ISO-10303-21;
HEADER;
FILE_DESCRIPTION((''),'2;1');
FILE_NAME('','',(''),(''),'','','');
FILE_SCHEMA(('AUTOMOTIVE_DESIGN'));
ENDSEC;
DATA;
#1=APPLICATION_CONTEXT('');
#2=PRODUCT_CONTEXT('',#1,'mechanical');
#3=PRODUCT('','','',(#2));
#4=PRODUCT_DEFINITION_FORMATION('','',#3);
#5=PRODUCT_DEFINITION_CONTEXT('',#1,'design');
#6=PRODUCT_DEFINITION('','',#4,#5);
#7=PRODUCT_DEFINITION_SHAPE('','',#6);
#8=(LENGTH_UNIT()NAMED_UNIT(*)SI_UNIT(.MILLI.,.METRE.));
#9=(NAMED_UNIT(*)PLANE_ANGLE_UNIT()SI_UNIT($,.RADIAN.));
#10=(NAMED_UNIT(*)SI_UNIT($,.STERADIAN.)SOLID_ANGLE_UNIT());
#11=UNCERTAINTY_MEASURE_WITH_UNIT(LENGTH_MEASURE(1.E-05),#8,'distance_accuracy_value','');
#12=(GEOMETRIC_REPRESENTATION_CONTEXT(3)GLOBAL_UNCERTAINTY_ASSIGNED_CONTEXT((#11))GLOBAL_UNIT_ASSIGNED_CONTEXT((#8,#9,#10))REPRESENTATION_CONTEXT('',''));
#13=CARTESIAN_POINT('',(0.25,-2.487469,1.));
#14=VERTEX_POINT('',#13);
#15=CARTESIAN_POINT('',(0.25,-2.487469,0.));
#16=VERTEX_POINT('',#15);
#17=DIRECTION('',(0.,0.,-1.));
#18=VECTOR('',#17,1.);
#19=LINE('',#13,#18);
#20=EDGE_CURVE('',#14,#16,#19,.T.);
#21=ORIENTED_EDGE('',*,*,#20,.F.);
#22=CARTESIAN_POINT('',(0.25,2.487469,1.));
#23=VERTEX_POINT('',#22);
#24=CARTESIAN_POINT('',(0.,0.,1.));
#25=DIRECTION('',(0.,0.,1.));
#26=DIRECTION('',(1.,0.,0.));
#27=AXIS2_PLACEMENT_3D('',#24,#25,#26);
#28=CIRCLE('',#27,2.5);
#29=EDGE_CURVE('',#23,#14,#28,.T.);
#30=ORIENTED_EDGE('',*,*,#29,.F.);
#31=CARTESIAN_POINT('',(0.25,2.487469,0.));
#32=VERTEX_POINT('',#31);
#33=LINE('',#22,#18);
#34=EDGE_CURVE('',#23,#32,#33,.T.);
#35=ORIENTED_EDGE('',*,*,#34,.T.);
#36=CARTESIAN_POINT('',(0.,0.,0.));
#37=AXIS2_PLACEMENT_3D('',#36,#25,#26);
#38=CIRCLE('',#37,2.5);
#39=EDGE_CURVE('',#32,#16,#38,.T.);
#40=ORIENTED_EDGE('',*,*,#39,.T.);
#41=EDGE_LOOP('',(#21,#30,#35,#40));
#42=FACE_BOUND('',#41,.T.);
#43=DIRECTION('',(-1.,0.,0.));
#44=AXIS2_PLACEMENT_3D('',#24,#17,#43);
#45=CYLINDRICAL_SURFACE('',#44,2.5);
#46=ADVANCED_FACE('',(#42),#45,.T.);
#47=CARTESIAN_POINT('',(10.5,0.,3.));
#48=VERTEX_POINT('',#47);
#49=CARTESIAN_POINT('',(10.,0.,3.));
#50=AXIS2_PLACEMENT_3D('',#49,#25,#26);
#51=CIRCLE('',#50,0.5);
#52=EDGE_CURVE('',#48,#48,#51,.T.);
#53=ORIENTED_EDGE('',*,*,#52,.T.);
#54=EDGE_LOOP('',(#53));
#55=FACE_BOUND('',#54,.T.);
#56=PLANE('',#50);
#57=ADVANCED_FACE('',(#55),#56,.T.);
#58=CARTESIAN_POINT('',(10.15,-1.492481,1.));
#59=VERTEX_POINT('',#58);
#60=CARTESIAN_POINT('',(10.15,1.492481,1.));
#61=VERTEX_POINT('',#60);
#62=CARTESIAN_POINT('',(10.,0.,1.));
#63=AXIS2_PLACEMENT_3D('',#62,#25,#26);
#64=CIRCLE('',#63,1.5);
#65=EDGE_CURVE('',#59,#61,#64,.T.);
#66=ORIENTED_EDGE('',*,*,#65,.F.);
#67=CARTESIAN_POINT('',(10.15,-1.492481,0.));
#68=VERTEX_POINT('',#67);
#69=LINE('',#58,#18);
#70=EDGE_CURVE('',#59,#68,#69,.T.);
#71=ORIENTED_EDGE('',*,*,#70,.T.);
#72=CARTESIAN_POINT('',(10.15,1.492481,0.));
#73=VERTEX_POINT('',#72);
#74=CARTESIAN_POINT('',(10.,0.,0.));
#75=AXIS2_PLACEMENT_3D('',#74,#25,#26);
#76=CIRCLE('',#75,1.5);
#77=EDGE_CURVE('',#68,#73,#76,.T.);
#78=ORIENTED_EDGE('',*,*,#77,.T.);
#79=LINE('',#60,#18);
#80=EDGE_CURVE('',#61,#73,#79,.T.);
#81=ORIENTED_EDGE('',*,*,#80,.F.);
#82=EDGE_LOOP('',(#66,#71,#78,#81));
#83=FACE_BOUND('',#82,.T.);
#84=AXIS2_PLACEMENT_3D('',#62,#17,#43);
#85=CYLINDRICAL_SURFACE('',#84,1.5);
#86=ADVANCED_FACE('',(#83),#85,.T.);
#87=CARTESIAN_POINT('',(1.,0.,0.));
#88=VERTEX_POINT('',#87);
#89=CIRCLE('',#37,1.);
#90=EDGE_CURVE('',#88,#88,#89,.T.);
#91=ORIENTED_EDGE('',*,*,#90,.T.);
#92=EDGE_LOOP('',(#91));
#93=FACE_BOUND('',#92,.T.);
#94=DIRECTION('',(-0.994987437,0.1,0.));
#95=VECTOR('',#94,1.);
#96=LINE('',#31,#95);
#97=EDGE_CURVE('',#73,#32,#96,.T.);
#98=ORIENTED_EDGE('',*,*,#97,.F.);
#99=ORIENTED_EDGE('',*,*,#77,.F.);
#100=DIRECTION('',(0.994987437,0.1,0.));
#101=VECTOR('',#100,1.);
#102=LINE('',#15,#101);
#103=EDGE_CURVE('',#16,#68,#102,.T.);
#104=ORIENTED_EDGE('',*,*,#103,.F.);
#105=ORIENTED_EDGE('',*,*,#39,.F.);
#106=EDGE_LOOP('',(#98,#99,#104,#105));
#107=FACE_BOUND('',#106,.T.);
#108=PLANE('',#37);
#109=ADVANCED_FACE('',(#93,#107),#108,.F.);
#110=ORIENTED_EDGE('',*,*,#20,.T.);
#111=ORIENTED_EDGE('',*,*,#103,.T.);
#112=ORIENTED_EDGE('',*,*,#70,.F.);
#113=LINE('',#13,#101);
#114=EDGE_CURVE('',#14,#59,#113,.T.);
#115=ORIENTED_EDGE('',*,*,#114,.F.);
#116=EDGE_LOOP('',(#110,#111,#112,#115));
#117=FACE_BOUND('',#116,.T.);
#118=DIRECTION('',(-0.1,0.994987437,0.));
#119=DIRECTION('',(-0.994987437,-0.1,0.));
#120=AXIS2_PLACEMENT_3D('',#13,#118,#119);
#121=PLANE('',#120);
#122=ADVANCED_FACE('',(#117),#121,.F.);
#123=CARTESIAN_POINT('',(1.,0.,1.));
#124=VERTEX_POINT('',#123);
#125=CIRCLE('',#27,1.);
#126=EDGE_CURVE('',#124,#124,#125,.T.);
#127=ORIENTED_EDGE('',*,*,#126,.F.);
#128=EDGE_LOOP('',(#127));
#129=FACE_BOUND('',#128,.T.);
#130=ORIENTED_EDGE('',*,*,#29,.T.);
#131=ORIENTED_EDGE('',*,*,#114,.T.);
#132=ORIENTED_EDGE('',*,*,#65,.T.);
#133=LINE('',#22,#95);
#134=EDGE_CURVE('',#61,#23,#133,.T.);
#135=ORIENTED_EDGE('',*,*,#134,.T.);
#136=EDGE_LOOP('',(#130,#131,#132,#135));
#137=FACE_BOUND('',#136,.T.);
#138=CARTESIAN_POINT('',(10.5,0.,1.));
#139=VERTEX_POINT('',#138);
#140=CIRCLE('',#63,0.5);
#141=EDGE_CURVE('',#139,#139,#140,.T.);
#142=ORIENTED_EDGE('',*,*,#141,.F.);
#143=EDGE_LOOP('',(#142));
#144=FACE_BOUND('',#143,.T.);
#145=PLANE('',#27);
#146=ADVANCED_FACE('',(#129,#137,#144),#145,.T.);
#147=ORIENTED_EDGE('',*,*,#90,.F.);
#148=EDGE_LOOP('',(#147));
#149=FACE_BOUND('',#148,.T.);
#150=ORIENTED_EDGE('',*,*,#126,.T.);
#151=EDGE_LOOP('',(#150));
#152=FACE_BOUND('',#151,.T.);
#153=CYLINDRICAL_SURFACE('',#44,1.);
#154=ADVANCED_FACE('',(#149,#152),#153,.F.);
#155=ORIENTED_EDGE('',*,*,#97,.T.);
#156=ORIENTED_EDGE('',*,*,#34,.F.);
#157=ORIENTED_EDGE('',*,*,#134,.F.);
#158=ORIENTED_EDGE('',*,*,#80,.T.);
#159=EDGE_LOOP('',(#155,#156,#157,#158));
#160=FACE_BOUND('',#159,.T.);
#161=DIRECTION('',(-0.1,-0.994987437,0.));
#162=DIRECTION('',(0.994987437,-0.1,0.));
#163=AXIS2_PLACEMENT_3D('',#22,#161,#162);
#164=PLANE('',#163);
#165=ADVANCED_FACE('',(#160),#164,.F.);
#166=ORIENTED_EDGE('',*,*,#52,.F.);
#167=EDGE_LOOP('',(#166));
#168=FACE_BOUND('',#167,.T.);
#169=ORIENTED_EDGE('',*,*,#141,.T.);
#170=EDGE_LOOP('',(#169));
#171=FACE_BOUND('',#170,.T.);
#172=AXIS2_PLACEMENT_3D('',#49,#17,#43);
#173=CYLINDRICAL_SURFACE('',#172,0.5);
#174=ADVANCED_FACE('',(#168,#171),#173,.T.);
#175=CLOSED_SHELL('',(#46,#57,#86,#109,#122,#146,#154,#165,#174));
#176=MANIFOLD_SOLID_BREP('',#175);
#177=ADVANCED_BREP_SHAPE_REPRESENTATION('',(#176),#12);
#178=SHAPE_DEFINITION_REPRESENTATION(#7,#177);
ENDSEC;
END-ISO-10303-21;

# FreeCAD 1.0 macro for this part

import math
import FreeCAD as App
import Part
import Sketcher

V = App.Vector

doc = App.newDocument("Part")
body = doc.addObject("PartDesign::Body", "Body")

# Sketch on XY plane
sketch1 = doc.addObject("Sketcher::SketchObject", "Sketch")
body.addObject(sketch1)
sketch1.AttachmentSupport = (doc.XY_Plane, [""])
sketch1.MapMode = "FlatFace"
sketch1.addGeometry([
    Part.LineSegment(V(10.15, 1.492481, 0), V(0.25, 2.487469, 0)),  # 0
    Part.ArcOfCircle(Part.Circle(V(0, 0, 0), V(0, 0, 1), 2.5), math.radians(84.26083), math.radians(275.73917)),  # 1
    Part.LineSegment(V(0.25, -2.487469, 0), V(10.15, -1.492481, 0)),  # 2
    Part.ArcOfCircle(Part.Circle(V(10, 0, 0), V(0, 0, 1), 1.5), math.radians(-84.26083), math.radians(84.26083)),  # 3
    Part.Circle(V(0, 0, 0), V(0, 0, 1), 1),  # 4
], False)
sketch1.addConstraint([
    Sketcher.Constraint("Tangent", 0, 2, 1, 1),
    Sketcher.Constraint("Tangent", 1, 2, 2, 1),
    Sketcher.Constraint("Tangent", 2, 2, 3, 1),
    Sketcher.Constraint("Tangent", 3, 2, 0, 1),
    Sketcher.Constraint("Coincident", 1, 3, -1, 1),
    Sketcher.Constraint("Coincident", 4, 3, -1, 1),
    Sketcher.Constraint("PointOnObject", 3, 3, -1),
    Sketcher.Constraint("Diameter", 4, 2.0),
    Sketcher.Constraint("Radius", 1, 2.5),
    Sketcher.Constraint("Radius", 3, 1.5),
    Sketcher.Constraint("DistanceX", -1, 1, 3, 3, 10.0),
])
pad1 = doc.addObject("PartDesign::Pad", "Pad")
body.addObject(pad1)
pad1.Profile = sketch1
pad1.Length = 1

# Sketch on XY plane
sketch2 = doc.addObject("Sketcher::SketchObject", "Sketch001")
body.addObject(sketch2)
sketch2.AttachmentSupport = (doc.XY_Plane, [""])
sketch2.MapMode = "FlatFace"
sketch2.AttachmentOffset = App.Placement(V(0, 0, 1), App.Rotation())
sketch2.addGeometry(Part.Circle(V(10, 0, 0), V(0, 0, 1), 0.5), False)
sketch2.addConstraint([
    Sketcher.Constraint("PointOnObject", 0, 3, -1),
    Sketcher.Constraint("Diameter", 0, 1.0),
    Sketcher.Constraint("DistanceX", -1, 1, 0, 3, 10.0),
])
pad2 = doc.addObject("PartDesign::Pad", "Pad001")
body.addObject(pad2)
pad2.Profile = sketch2
pad2.Length = 2

doc.recompute()
